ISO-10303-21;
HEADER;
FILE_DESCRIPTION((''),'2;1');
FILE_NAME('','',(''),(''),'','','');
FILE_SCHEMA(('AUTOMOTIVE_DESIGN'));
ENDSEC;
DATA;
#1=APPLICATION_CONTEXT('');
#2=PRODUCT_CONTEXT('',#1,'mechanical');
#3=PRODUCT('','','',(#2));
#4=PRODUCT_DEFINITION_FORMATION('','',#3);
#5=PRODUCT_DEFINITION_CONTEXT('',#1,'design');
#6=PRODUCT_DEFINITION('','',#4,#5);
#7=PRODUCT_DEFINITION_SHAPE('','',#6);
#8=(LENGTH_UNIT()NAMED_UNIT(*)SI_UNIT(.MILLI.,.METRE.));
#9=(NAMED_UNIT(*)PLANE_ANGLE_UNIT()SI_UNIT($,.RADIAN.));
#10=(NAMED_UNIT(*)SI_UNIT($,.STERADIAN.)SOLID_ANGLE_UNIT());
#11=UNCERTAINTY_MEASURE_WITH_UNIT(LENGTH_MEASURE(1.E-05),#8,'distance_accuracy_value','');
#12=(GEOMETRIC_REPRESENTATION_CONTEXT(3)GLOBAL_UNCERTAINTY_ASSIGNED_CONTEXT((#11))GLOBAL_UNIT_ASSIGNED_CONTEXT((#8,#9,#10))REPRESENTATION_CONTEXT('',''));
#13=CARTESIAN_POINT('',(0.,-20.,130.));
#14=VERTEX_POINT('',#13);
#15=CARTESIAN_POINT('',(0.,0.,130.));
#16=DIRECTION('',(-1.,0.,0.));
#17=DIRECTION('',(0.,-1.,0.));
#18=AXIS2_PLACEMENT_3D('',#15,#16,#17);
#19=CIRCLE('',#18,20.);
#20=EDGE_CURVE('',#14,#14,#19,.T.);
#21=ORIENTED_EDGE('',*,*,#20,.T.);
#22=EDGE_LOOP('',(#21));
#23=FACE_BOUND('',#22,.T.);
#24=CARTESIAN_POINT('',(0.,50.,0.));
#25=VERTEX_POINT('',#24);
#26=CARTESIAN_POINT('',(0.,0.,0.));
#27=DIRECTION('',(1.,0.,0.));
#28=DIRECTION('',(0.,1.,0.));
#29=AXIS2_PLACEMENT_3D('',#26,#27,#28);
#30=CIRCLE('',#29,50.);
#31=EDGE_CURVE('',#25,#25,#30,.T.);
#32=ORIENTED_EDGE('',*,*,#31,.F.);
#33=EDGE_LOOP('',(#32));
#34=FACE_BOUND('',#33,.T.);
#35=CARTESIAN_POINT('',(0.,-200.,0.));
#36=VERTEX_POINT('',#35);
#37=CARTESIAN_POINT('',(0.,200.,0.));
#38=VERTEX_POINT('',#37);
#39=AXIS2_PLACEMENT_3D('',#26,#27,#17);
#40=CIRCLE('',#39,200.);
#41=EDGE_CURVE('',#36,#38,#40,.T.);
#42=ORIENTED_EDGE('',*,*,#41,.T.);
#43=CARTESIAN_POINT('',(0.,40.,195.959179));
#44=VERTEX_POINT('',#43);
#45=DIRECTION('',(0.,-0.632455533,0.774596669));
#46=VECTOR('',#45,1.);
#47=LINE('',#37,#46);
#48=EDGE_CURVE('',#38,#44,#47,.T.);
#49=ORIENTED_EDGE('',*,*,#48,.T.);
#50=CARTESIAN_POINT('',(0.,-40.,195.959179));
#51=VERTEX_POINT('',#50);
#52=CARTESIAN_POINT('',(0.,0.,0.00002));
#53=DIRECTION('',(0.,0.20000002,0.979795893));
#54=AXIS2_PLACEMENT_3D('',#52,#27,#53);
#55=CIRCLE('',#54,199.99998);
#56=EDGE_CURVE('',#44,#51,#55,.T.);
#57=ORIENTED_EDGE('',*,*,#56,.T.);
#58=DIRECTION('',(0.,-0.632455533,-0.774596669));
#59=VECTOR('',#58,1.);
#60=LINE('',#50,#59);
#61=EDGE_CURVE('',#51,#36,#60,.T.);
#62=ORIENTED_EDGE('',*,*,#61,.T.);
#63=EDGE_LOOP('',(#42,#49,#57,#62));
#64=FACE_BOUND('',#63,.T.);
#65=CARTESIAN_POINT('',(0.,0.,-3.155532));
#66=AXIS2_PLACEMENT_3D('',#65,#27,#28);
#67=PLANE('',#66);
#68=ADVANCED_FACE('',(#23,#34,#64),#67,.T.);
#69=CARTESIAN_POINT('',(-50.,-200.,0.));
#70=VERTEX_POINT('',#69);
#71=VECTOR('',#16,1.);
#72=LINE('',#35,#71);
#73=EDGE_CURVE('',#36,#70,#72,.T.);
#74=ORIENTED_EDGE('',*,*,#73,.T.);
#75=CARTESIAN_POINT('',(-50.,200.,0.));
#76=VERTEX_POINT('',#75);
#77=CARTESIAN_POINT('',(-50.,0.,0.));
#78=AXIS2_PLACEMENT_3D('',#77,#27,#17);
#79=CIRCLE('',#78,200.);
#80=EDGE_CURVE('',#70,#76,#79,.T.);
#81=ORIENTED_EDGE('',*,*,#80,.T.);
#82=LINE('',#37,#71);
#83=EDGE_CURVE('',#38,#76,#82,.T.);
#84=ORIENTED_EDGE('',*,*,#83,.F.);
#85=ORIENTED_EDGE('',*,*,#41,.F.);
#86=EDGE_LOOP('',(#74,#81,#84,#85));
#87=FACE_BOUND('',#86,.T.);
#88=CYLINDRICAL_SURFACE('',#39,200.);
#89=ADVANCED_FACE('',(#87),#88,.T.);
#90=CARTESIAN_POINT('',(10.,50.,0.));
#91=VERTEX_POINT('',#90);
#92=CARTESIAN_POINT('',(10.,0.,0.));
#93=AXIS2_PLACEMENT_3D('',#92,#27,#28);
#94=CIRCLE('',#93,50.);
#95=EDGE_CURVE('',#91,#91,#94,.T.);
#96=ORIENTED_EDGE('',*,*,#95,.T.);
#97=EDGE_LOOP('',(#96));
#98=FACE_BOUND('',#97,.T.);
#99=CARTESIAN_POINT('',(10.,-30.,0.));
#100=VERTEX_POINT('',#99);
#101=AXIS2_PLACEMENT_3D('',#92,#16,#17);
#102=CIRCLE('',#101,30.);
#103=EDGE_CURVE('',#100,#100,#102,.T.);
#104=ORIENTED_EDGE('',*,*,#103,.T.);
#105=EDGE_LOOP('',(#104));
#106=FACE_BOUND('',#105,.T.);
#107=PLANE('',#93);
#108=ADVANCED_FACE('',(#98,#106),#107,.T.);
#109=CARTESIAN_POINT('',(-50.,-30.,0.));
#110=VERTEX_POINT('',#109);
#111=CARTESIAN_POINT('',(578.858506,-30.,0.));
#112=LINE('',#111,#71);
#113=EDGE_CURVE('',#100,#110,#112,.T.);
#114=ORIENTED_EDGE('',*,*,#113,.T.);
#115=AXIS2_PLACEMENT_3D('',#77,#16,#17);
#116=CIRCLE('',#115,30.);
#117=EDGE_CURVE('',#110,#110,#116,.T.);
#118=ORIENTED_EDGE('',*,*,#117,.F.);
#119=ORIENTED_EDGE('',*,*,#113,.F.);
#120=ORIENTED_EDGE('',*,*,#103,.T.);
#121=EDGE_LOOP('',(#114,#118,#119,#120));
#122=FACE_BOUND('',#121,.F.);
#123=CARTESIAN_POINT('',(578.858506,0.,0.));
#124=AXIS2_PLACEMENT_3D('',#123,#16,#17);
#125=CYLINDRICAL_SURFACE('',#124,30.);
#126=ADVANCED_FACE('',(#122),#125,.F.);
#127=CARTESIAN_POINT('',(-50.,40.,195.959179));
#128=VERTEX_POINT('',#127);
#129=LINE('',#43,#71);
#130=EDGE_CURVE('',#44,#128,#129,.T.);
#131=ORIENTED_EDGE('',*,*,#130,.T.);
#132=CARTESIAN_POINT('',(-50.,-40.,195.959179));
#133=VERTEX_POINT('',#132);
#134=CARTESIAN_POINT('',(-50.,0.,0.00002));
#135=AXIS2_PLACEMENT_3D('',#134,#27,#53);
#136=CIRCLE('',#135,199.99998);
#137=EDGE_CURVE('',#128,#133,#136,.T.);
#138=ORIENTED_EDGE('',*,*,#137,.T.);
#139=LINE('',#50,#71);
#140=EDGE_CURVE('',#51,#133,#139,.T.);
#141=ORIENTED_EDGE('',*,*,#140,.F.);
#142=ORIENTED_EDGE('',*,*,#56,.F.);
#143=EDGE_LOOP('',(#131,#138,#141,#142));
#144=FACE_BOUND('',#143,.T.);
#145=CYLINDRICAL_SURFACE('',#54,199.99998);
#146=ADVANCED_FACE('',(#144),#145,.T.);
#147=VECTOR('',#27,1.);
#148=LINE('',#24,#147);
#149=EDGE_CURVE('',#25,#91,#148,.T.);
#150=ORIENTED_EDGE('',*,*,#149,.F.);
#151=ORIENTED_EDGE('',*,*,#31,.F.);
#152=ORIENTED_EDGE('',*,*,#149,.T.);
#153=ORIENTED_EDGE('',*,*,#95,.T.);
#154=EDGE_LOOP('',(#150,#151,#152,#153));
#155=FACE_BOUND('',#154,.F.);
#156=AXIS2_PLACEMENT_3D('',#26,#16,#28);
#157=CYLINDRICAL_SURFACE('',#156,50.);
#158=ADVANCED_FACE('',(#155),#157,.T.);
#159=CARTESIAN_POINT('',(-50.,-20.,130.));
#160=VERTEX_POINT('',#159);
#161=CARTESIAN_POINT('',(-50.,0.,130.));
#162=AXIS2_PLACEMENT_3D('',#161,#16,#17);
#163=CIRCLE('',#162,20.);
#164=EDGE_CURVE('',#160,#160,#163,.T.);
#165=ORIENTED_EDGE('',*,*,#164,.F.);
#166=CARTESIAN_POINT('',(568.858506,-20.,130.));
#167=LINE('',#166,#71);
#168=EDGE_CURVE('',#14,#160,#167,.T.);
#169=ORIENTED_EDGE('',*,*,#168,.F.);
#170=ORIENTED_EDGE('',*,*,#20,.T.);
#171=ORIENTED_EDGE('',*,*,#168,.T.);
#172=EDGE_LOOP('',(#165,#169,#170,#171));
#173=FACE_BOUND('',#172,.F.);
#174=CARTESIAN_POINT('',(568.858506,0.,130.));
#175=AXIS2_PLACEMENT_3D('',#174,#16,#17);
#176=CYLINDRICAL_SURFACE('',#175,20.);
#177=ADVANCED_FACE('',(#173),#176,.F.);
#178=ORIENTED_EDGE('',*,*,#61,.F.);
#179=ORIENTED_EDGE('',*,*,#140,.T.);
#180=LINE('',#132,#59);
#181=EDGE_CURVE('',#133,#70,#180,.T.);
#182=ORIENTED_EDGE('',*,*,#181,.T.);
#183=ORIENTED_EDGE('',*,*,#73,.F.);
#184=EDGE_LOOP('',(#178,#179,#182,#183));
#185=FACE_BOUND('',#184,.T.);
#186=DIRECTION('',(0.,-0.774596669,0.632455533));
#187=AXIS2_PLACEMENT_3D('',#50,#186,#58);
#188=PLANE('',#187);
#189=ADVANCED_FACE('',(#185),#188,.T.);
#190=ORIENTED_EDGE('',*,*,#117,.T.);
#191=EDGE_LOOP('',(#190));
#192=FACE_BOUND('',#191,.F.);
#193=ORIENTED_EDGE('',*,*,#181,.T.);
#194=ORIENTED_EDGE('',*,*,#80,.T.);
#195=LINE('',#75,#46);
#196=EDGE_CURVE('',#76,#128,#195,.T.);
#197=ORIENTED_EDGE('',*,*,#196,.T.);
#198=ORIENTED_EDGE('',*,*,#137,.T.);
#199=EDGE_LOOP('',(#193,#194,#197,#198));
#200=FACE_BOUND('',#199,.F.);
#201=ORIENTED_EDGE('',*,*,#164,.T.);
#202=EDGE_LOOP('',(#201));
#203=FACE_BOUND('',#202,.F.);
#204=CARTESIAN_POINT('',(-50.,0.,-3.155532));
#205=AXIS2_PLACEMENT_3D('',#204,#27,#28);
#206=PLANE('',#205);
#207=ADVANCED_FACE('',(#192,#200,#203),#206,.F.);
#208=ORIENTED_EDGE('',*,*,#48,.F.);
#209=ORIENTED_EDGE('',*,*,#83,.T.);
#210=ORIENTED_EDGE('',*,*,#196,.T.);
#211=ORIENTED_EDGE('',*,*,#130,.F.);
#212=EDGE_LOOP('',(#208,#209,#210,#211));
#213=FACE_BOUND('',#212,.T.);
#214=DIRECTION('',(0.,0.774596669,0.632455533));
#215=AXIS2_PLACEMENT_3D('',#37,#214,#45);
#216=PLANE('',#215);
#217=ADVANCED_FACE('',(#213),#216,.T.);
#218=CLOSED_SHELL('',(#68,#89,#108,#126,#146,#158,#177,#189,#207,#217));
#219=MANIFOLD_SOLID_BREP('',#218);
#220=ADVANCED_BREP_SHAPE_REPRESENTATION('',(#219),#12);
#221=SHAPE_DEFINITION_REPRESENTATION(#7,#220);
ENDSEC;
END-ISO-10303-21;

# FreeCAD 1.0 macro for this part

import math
import FreeCAD as App
import Part
import Sketcher

V = App.Vector
Q = App.Units.Quantity

doc = App.newDocument("Part")
body = doc.addObject("PartDesign::Body", "Body")

sketch1 = body.newObject("Sketcher::SketchObject", "Sketch")
sketch1.AttachmentSupport = (doc.getObject("YZ_Plane"), [""])
sketch1.MapMode = "FlatFace"
sketch1.addGeometry([
    Part.LineSegment(V(-40, 196, 0), V(-200, 0, 0)),
    Part.ArcOfCircle(Part.Circle(V(0, 0, 0), V(0, 0, 1), 200), math.radians(180), math.radians(360)),
    Part.LineSegment(V(200, 0, 0), V(40, 196, 0)),
    Part.ArcOfCircle(Part.Circle(V(0, 0, 0), V(0, 0, 1), 200), math.radians(78), math.radians(102)),
], False)
sketch1.addConstraint([
    Sketcher.Constraint("Coincident", 0, 2, 1, 1),
    Sketcher.Constraint("Coincident", 1, 2, 2, 1),
    Sketcher.Constraint("Coincident", 2, 2, 3, 1),
    Sketcher.Constraint("Coincident", 3, 2, 0, 1),
    Sketcher.Constraint("Coincident", 1, 3, -1, 1),
    Sketcher.Constraint("Symmetric", 2, 2, 3, 2, -2),
    Sketcher.Constraint("PointOnObject", 0, 2, -1),
    Sketcher.Constraint("PointOnObject", 1, 2, -1),
    Sketcher.Constraint("Radius", 1, Q("200 mm")),
    Sketcher.Constraint("DistanceX", -1, 1, 2, 2, Q("40 mm")),
    Sketcher.Constraint("Radius", 3, Q("199.99998 mm")),
    Sketcher.Constraint("DistanceY", -1, 1, 2, 2, Q("195.959179 mm")),
])
pad1 = body.newObject("PartDesign::Pad", "Pad")
pad1.Profile = sketch1
pad1.Length = 50
pad1.Reversed = True

sketch2 = body.newObject("Sketcher::SketchObject", "Sketch001")
sketch2.AttachmentSupport = (doc.getObject("YZ_Plane"), [""])
sketch2.MapMode = "FlatFace"
sketch2.addGeometry(Part.Circle(V(0, 0, 0), V(0, 0, 1), 50), False)
sketch2.addConstraint([
    Sketcher.Constraint("Coincident", 0, 3, -1, 1),
    Sketcher.Constraint("Diameter", 0, Q("100 mm")),
])
pad2 = body.newObject("PartDesign::Pad", "Pad001")
pad2.Profile = sketch2
pad2.Length = 10

sketch3 = body.newObject("Sketcher::SketchObject", "Sketch002")
sketch3.AttachmentSupport = (doc.getObject("YZ_Plane"), [""])
sketch3.MapMode = "FlatFace"
sketch3.AttachmentOffset = App.Placement(V(0, 0, 10), App.Rotation())
sketch3.addGeometry(Part.Circle(V(0, 0, 0), V(0, 0, 1), 30), False)
sketch3.addConstraint([
    Sketcher.Constraint("Coincident", 0, 3, -1, 1),
    Sketcher.Constraint("Diameter", 0, Q("60 mm")),
])
doc.recompute()
hole = body.newObject("PartDesign::Hole", "Hole")
hole.Profile = sketch3
hole.ThreadType = "None"
hole.Diameter = 60
hole.DepthType = "ThroughAll"

sketch4 = body.newObject("Sketcher::SketchObject", "Sketch003")
sketch4.AttachmentSupport = (doc.getObject("YZ_Plane"), [""])
sketch4.MapMode = "FlatFace"
sketch4.addGeometry(Part.Circle(V(0, 130, 0), V(0, 0, 1), 20), False)
sketch4.addConstraint([
    Sketcher.Constraint("PointOnObject", 0, 3, -2),
    Sketcher.Constraint("Diameter", 0, Q("40 mm")),
    Sketcher.Constraint("DistanceY", -1, 1, 0, 3, Q("130 mm")),
])
doc.recompute()
hole2 = body.newObject("PartDesign::Hole", "Hole001")
hole2.Profile = sketch4
hole2.ThreadType = "None"
hole2.Diameter = 40
hole2.DepthType = "ThroughAll"

doc.recompute()
